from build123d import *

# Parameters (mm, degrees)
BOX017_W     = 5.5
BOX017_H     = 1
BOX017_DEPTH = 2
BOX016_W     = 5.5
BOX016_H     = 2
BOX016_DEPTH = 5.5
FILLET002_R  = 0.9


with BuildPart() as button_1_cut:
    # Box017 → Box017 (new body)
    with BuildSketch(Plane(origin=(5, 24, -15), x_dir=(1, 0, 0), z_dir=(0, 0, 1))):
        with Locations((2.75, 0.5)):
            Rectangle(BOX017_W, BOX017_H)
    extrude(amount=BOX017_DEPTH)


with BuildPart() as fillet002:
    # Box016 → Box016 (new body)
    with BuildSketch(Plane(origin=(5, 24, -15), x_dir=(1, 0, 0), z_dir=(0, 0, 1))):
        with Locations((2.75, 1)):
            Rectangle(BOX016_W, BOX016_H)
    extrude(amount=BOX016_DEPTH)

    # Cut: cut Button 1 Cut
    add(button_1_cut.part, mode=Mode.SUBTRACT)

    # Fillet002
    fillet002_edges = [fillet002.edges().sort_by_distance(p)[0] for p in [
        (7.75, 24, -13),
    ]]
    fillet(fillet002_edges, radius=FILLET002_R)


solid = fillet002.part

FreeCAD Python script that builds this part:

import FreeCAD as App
import Part
import Sketcher

V = App.Vector
Q = App.Units.Quantity


def edges_at(feature, points):
    """Names of the edges that pass closest to the given points."""
    edges = feature.Shape.Edges
    near = lambda p: min(range(len(edges)), key=lambda i: edges[i].distToShape(Part.Vertex(*p))[0])
    return sorted({f"Edge{near(p) + 1}" for p in points})

doc = App.newDocument("Part")
body = doc.addObject("PartDesign::Body", "Body")

sketch1 = body.newObject("Sketcher::SketchObject", "Sketch")
sketch1.AttachmentSupport = (doc.getObject("XY_Plane"), [""])
sketch1.MapMode = "FlatFace"
sketch1.AttachmentOffset = App.Placement(V(0, 0, -15), App.Rotation())
sketch1.addGeometry([
    Part.LineSegment(V(5, 25, 0), V(5, 24, 0)),
    Part.LineSegment(V(5, 24, 0), V(10.5, 24, 0)),
    Part.LineSegment(V(10.5, 24, 0), V(10.5, 25, 0)),
    Part.LineSegment(V(10.5, 25, 0), V(5, 25, 0)),
], False)
sketch1.addConstraint([
    Sketcher.Constraint("Coincident", 0, 2, 1, 1),
    Sketcher.Constraint("Coincident", 1, 2, 2, 1),
    Sketcher.Constraint("Coincident", 2, 2, 3, 1),
    Sketcher.Constraint("Coincident", 3, 2, 0, 1),
    Sketcher.Constraint("Vertical", 0),
    Sketcher.Constraint("Horizontal", 1),
    Sketcher.Constraint("Vertical", 2),
    Sketcher.Constraint("Horizontal", 3),
    Sketcher.Constraint("DistanceY", 0, 2, 0, 1, Q("1 mm")),
    Sketcher.Constraint("DistanceX", 1, 1, 1, 2, Q("5.5 mm")),
    Sketcher.Constraint("DistanceX", -1, 1, 0, 2, Q("5 mm")),
    Sketcher.Constraint("DistanceY", -1, 1, 0, 2, Q("24 mm")),
])
pad1 = body.newObject("PartDesign::Pad", "Pad")
pad1.Profile = sketch1
pad1.Length = 2
body2 = doc.addObject("PartDesign::Body", "Body001")

sketch2 = body2.newObject("Sketcher::SketchObject", "Sketch001")
sketch2.AttachmentSupport = (doc.getObject("XY_Plane001"), [""])
sketch2.MapMode = "FlatFace"
sketch2.AttachmentOffset = App.Placement(V(0, 0, -15), App.Rotation())
sketch2.addGeometry([
    Part.LineSegment(V(5, 26, 0), V(5, 24, 0)),
    Part.LineSegment(V(5, 24, 0), V(10.5, 24, 0)),
    Part.LineSegment(V(10.5, 24, 0), V(10.5, 26, 0)),
    Part.LineSegment(V(10.5, 26, 0), V(5, 26, 0)),
], False)
sketch2.addConstraint([
    Sketcher.Constraint("Coincident", 0, 2, 1, 1),
    Sketcher.Constraint("Coincident", 1, 2, 2, 1),
    Sketcher.Constraint("Coincident", 2, 2, 3, 1),
    Sketcher.Constraint("Coincident", 3, 2, 0, 1),
    Sketcher.Constraint("Vertical", 0),
    Sketcher.Constraint("Horizontal", 1),
    Sketcher.Constraint("Vertical", 2),
    Sketcher.Constraint("Horizontal", 3),
    Sketcher.Constraint("DistanceY", 0, 2, 0, 1, Q("2 mm")),
    Sketcher.Constraint("DistanceX", 1, 1, 1, 2, Q("5.5 mm")),
    Sketcher.Constraint("DistanceX", -1, 1, 0, 2, Q("5 mm")),
    Sketcher.Constraint("DistanceY", -1, 1, 0, 2, Q("24 mm")),
])
pad2 = body2.newObject("PartDesign::Pad", "Pad001")
pad2.Profile = sketch2
pad2.Length = 5.5
doc.recompute()

boolean = body2.newObject("PartDesign::Boolean", "Boolean")
boolean.Type = "Cut"
boolean.addObjects([body])
doc.recompute()

fillet = body2.newObject("PartDesign::Fillet", "Fillet")
fillet.Base = (boolean, edges_at(boolean, [(7.75, 24, -13)]))
fillet.Radius = 0.9

doc.recompute()
